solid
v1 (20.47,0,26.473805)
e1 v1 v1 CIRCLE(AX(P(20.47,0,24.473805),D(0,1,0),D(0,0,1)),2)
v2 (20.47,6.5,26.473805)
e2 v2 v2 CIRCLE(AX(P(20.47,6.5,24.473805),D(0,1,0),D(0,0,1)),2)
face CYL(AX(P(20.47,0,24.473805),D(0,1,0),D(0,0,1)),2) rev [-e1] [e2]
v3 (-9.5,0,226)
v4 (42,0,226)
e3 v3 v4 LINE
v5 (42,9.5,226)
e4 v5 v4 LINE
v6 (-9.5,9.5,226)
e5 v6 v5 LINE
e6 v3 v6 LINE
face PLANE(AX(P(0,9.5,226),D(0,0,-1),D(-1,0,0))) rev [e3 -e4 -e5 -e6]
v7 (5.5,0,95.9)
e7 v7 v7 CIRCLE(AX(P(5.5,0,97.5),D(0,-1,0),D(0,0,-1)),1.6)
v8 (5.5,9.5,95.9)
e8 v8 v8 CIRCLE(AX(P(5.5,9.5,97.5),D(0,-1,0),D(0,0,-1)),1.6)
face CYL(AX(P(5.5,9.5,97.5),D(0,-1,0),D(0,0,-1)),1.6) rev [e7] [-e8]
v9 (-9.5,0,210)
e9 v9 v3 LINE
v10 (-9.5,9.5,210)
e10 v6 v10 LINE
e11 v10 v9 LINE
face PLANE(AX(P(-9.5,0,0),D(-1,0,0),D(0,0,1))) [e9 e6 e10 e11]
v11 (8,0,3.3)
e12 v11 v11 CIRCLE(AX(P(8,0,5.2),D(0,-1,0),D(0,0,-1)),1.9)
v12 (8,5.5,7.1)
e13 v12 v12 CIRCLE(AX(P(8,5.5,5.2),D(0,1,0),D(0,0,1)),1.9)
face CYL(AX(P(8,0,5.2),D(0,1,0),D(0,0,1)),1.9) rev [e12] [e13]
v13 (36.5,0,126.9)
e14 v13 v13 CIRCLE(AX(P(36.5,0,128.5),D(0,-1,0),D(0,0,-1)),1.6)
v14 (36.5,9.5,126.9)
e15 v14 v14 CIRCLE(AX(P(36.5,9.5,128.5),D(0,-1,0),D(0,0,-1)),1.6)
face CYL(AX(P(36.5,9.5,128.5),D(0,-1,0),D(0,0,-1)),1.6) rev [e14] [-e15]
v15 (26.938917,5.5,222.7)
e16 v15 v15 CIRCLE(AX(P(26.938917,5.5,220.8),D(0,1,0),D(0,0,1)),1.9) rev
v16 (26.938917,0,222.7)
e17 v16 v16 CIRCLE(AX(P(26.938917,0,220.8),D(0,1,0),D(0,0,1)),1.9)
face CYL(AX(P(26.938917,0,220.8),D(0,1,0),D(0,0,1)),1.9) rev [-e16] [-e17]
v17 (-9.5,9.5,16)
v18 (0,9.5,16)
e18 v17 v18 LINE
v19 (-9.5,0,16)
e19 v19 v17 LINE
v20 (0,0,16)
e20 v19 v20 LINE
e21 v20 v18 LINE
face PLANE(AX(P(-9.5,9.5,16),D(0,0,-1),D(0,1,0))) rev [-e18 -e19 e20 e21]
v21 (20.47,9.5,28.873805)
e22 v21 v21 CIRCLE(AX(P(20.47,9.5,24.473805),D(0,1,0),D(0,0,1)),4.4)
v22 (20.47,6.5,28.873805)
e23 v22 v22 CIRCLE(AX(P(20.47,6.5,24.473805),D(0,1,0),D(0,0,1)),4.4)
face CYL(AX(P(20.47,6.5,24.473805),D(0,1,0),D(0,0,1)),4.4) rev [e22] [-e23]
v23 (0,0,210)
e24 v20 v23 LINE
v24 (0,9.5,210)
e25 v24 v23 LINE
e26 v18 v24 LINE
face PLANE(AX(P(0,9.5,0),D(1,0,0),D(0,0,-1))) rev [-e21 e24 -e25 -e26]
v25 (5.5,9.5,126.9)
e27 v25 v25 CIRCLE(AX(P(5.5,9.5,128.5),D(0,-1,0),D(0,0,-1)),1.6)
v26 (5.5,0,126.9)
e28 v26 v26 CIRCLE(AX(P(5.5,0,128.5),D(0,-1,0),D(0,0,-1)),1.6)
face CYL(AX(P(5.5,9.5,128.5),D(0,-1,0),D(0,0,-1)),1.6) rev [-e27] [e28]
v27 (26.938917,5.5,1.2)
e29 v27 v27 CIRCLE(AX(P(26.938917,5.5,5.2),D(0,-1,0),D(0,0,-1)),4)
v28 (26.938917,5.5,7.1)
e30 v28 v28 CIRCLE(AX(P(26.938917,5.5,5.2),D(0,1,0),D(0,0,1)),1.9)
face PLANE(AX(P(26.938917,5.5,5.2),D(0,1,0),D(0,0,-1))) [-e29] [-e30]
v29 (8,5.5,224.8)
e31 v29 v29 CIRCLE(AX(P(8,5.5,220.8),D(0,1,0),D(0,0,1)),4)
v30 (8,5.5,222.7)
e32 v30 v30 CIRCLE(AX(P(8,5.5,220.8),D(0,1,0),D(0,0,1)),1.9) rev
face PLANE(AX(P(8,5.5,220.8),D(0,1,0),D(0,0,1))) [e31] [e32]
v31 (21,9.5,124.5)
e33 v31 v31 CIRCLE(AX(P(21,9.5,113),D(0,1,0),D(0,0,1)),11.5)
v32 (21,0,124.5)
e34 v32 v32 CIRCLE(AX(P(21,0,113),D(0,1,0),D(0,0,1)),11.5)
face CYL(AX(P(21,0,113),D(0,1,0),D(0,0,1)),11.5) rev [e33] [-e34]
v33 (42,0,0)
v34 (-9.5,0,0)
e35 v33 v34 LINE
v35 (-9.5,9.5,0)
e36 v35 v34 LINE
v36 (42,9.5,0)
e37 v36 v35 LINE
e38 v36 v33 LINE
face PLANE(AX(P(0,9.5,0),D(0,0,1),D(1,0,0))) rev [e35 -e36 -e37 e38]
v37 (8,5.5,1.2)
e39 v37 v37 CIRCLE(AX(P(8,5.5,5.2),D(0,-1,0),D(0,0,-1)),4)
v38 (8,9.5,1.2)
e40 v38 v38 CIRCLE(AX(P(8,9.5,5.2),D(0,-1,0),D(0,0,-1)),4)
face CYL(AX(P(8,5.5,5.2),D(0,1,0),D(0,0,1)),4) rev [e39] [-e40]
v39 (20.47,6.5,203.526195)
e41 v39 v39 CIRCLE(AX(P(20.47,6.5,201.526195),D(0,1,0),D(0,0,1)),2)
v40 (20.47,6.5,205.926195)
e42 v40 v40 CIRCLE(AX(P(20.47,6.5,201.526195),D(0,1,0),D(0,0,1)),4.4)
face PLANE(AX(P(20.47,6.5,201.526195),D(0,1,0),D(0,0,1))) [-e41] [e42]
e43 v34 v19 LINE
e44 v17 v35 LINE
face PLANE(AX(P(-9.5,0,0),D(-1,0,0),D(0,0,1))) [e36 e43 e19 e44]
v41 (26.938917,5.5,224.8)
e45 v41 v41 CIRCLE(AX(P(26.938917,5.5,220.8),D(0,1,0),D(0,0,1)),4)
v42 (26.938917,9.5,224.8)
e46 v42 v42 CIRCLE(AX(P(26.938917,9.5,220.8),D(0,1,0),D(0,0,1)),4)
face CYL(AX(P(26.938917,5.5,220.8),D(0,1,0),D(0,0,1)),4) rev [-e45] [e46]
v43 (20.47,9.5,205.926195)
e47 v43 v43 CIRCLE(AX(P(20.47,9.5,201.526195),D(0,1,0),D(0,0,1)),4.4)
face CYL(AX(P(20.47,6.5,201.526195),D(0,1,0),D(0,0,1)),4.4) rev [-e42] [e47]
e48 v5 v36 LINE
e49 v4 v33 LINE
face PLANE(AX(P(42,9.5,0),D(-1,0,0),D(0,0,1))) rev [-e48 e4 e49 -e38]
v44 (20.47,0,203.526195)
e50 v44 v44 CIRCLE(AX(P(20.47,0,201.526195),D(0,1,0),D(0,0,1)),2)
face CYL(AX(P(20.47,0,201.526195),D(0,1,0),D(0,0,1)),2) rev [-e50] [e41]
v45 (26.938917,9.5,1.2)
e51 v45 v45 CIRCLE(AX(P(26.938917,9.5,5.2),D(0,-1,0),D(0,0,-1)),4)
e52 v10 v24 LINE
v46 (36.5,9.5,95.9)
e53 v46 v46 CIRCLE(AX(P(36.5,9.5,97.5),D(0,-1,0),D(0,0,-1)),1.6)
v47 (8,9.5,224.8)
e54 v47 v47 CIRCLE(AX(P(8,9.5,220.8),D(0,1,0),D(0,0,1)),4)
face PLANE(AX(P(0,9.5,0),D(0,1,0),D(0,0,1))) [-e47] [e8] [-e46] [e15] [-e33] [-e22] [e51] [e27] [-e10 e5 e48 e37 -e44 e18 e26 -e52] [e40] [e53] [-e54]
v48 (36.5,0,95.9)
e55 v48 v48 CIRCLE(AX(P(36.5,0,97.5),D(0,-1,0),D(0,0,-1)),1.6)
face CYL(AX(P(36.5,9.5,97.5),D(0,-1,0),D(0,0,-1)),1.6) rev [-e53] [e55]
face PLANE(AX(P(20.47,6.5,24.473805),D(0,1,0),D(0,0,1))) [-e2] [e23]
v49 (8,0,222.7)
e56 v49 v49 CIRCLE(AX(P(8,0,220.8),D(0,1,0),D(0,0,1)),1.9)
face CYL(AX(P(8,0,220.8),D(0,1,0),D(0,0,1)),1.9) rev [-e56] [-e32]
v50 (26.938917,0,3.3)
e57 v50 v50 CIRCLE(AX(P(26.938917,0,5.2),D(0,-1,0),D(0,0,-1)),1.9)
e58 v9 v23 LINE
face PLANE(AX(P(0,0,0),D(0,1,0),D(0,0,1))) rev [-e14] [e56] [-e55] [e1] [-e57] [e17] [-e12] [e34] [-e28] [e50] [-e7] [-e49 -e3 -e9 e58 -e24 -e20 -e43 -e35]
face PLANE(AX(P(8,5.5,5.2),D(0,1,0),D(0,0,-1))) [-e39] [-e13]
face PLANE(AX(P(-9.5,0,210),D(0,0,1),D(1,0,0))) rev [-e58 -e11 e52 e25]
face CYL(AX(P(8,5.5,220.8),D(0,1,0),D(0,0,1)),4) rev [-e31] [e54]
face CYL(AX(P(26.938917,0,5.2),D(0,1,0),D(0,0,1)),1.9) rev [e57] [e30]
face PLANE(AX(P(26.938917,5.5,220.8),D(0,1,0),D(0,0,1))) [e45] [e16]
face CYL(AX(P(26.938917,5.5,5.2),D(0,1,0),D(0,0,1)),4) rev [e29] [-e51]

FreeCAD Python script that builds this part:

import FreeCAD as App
import Part
import Sketcher
from FreeCAD import Vector
Q = App.Units.Quantity

doc = App.newDocument("Part")
params = doc.addObject("Spreadsheet::Sheet", "Params")
for row, (alias, value) in enumerate([
    ("sketch1_width", "42 mm"),
    ("sketch1_height", "226 mm"),
    ("pad1_length", "9.5 mm"),
    ("sketch2_diameter", "23 mm"),
    ("sketch3_height", "16 mm"),
    ("sketch3_width", "9.5 mm"),
    ("pad2_length", "9.5 mm"),
    ("sketch4_diameter", "8.8 mm"),
    ("pocket2_length", "3 mm"),
    ("sketch5_diameter", "3.2 mm"),
    ("sketch6_diameter", "4 mm"),
    ("sketch7_diameter", "3.8 mm"),
    ("sketch8_diameter", "8 mm"),
    ("pocket6_length", "4 mm"),
], start=1):
    params.set(f"A{row}", alias)
    params.set(f"B{row}", "=" + value)
    params.setAlias(f"B{row}", alias)

body = doc.addObject("PartDesign::Body", "Body")

# Sketch on XZ plane
sketch1 = body.newObject("Sketcher::SketchObject", "Sketch")
sketch1.AttachmentSupport = (doc.getObject("XZ_Plane"), [""])
sketch1.MapMode = "FlatFace"
sketch1.addGeometry([
    Part.LineSegment(Vector(0, 0, 0), Vector(0, 226, 0)),
    Part.LineSegment(Vector(0, 226, 0), Vector(42, 226, 0)),
    Part.LineSegment(Vector(42, 226, 0), Vector(42, 0, 0)),
    Part.LineSegment(Vector(42, 0, 0), Vector(0, 0, 0)),
], False)
sketch1.addConstraint([
    Sketcher.Constraint("Coincident", 0, 2, 1, 1),
    Sketcher.Constraint("Coincident", 1, 2, 2, 1),
    Sketcher.Constraint("Coincident", 2, 2, 3, 1),
    Sketcher.Constraint("Coincident", 3, 2, 0, 1),
    Sketcher.Constraint("Vertical", 0),
    Sketcher.Constraint("Horizontal", 1),
    Sketcher.Constraint("Vertical", 2),
    Sketcher.Constraint("Horizontal", 3),
    Sketcher.Constraint("Coincident", 3, 2, -1, 1),
    Sketcher.Constraint("DistanceX", 1, 1, 1, 2, Q("42 mm")),
    Sketcher.Constraint("DistanceY", 0, 1, 0, 2, Q("226 mm")),
])
sketch1.setExpression("Constraints[9]", "Params.sketch1_width")
sketch1.setExpression("Constraints[10]", "Params.sketch1_height")
pad1 = body.newObject("PartDesign::Pad", "Pad")
pad1.Profile = sketch1
pad1.setExpression("Length", "Params.pad1_length")
pad1.Reversed = True

# Sketch on XZ plane
sketch2 = body.newObject("Sketcher::SketchObject", "Sketch001")
sketch2.AttachmentSupport = (doc.getObject("XZ_Plane"), [""])
sketch2.MapMode = "FlatFace"
sketch2.AttachmentOffset = App.Placement(Vector(0, 0, -9.5), App.Rotation())
sketch2.addGeometry(Part.Circle(Vector(21, 113, 0), Vector(0, 0, 1), 12), False)
sketch2.addConstraint([
    Sketcher.Constraint("Diameter", 0, Q("23 mm")),
    Sketcher.Constraint("DistanceX", -1, 1, 0, 3, Q("21 mm")),
    Sketcher.Constraint("DistanceY", -1, 1, 0, 3, Q("113 mm")),
])
sketch2.setExpression("Constraints[0]", "Params.sketch2_diameter")
pocket1 = body.newObject("PartDesign::Pocket", "Pocket")
pocket1.Profile = sketch2
pocket1.Type = "ThroughAll"
pocket1.Reversed = True

# Sketch on YZ plane
sketch3 = body.newObject("Sketcher::SketchObject", "Sketch002")
sketch3.AttachmentSupport = (doc.getObject("YZ_Plane"), [""])
sketch3.MapMode = "FlatFace"
sketch3.addGeometry([
    Part.LineSegment(Vector(10, 0, 0), Vector(0, 0, 0)),  # 0
    Part.LineSegment(Vector(0, 0, 0), Vector(0, 16, 0)),  # 1
    Part.LineSegment(Vector(0, 16, 0), Vector(10, 16, 0)),  # 2
    Part.LineSegment(Vector(10, 16, 0), Vector(10, 0, 0)),  # 3
    Part.LineSegment(Vector(10, 210, 0), Vector(0, 210, 0)),  # 4
    Part.LineSegment(Vector(0, 210, 0), Vector(0, 226, 0)),  # 5
    Part.LineSegment(Vector(0, 226, 0), Vector(10, 226, 0)),  # 6
    Part.LineSegment(Vector(10, 226, 0), Vector(10, 210, 0)),  # 7
], False)
sketch3.addConstraint([
    Sketcher.Constraint("Coincident", 0, 2, 1, 1),
    Sketcher.Constraint("Coincident", 1, 2, 2, 1),
    Sketcher.Constraint("Coincident", 2, 2, 3, 1),
    Sketcher.Constraint("Coincident", 3, 2, 0, 1),
    Sketcher.Constraint("Coincident", 4, 2, 5, 1),
    Sketcher.Constraint("Coincident", 5, 2, 6, 1),
    Sketcher.Constraint("Coincident", 6, 2, 7, 1),
    Sketcher.Constraint("Coincident", 7, 2, 4, 1),
    Sketcher.Constraint("Horizontal", 0),
    Sketcher.Constraint("Vertical", 1),
    Sketcher.Constraint("Horizontal", 2),
    Sketcher.Constraint("Vertical", 3),
    Sketcher.Constraint("Horizontal", 4),
    Sketcher.Constraint("Vertical", 5),
    Sketcher.Constraint("Horizontal", 6),
    Sketcher.Constraint("Vertical", 7),
    Sketcher.Constraint("Coincident", 0, 2, -1, 1),
    Sketcher.Constraint("PointOnObject", 4, 2, -2),
    Sketcher.Constraint("Vertical", 3, 2, 6, 2),
    Sketcher.Constraint("Equal", 3, 5),
    Sketcher.Constraint("DistanceY", 1, 1, 1, 2, Q("16 mm")),
    Sketcher.Constraint("DistanceX", 0, 2, 0, 1, Q("9.5 mm")),
    Sketcher.Constraint("DistanceY", -1, 1, 4, 2, Q("210 mm")),
])
sketch3.setExpression("Constraints[20]", "Params.sketch3_height")
sketch3.setExpression("Constraints[21]", "Params.sketch3_width")
pad2 = body.newObject("PartDesign::Pad", "Pad001")
pad2.Profile = sketch3
pad2.setExpression("Length", "Params.pad2_length")
pad2.Reversed = True

# Sketch on XZ plane
sketch4 = body.newObject("Sketcher::SketchObject", "Sketch003")
sketch4.AttachmentSupport = (doc.getObject("XZ_Plane"), [""])
sketch4.MapMode = "FlatFace"
sketch4.AttachmentOffset = App.Placement(Vector(0, 0, -9.5), App.Rotation())
sketch4.addGeometry([
    Part.Circle(Vector(20.5, 201.5, 0), Vector(0, 0, 1), 4.4),
    Part.Circle(Vector(20.5, 24.5, 0), Vector(0, 0, 1), 4.4),
], False)
sketch4.addConstraint([
    Sketcher.Constraint("Equal", 0, 1),
    Sketcher.Constraint("Vertical", 0, 3, 1, 3),
    Sketcher.Constraint("Diameter", 0, Q("8.8 mm")),
    Sketcher.Constraint("DistanceX", -1, 1, 0, 3, Q("20.47 mm")),
    Sketcher.Constraint("DistanceY", 1, 3, 0, 3, Q("177.052389 mm")),
    Sketcher.Constraint("DistanceY", -1, 1, 0, 3, Q("201.526195 mm")),
])
sketch4.setExpression("Constraints[2]", "Params.sketch4_diameter")
pocket2 = body.newObject("PartDesign::Pocket", "Pocket001")
pocket2.Profile = sketch4
pocket2.setExpression("Length", "Params.pocket2_length")
pocket2.Reversed = True

# Sketch on XZ plane
sketch5 = body.newObject("Sketcher::SketchObject", "Sketch004")
sketch5.AttachmentSupport = (doc.getObject("XZ_Plane"), [""])
sketch5.MapMode = "FlatFace"
sketch5.addGeometry([
    Part.Circle(Vector(5.5, 97.5, 0), Vector(0, 0, 1), 1.6),
    Part.Circle(Vector(5.5, 128.5, 0), Vector(0, 0, 1), 1.6),
    Part.Circle(Vector(36.5, 97.5, 0), Vector(0, 0, 1), 1.6),
    Part.Circle(Vector(36.5, 128.5, 0), Vector(0, 0, 1), 1.6),
], False)
sketch5.addConstraint([
    Sketcher.Constraint("Equal", 0, 1),
    Sketcher.Constraint("Equal", 1, 2),
    Sketcher.Constraint("Equal", 2, 3),
    Sketcher.Constraint("Horizontal", 0, 3, 2, 3),
    Sketcher.Constraint("Horizontal", 1, 3, 3, 3),
    Sketcher.Constraint("Vertical", 0, 3, 1, 3),
    Sketcher.Constraint("Vertical", 2, 3, 3, 3),
    Sketcher.Constraint("Diameter", 0, Q("3.2 mm")),
    Sketcher.Constraint("DistanceY", 0, 3, 1, 3, Q("31 mm")),
    Sketcher.Constraint("DistanceX", 0, 3, 2, 3, Q("31 mm")),
    Sketcher.Constraint("DistanceX", -1, 1, 0, 3, Q("5.5 mm")),
    Sketcher.Constraint("DistanceY", -1, 1, 0, 3, Q("97.5 mm")),
])
sketch5.setExpression("Constraints[7]", "Params.sketch5_diameter")
pocket3 = body.newObject("PartDesign::Pocket", "Pocket002")
pocket3.Profile = sketch5
pocket3.Type = "ThroughAll"

# Sketch on XZ plane
sketch6 = body.newObject("Sketcher::SketchObject", "Sketch005")
sketch6.AttachmentSupport = (doc.getObject("XZ_Plane"), [""])
sketch6.MapMode = "FlatFace"
sketch6.AttachmentOffset = App.Placement(Vector(0, 0, -9.5), App.Rotation())
sketch6.addGeometry([
    Part.Circle(Vector(20.5, 201.5, 0), Vector(0, 0, 1), 2),
    Part.Circle(Vector(20.5, 24.5, 0), Vector(0, 0, 1), 2),
], False)
sketch6.addConstraint([
    Sketcher.Constraint("Equal", 0, 1),
    Sketcher.Constraint("Vertical", 0, 3, 1, 3),
    Sketcher.Constraint("Diameter", 0, Q("4 mm")),
    Sketcher.Constraint("DistanceX", -1, 1, 0, 3, Q("20.47 mm")),
    Sketcher.Constraint("DistanceY", 1, 3, 0, 3, Q("177.052389 mm")),
    Sketcher.Constraint("DistanceY", -1, 1, 0, 3, Q("201.526195 mm")),
])
sketch6.setExpression("Constraints[2]", "Params.sketch6_diameter")
pocket4 = body.newObject("PartDesign::Pocket", "Pocket003")
pocket4.Profile = sketch6
pocket4.Type = "ThroughAll"
pocket4.Reversed = True

# Sketch on XZ plane
sketch7 = body.newObject("Sketcher::SketchObject", "Sketch006")
sketch7.AttachmentSupport = (doc.getObject("XZ_Plane"), [""])
sketch7.MapMode = "FlatFace"
sketch7.AttachmentOffset = App.Placement(Vector(0, 0, -9.5), App.Rotation())
sketch7.addGeometry([
    Part.Circle(Vector(8, 220.8, 0), Vector(0, 0, 1), 1.9),
    Part.Circle(Vector(26.9, 220.8, 0), Vector(0, 0, 1), 1.9),
], False)
sketch7.addConstraint([
    Sketcher.Constraint("Equal", 0, 1),
    Sketcher.Constraint("Horizontal", 0, 3, 1, 3),
    Sketcher.Constraint("Diameter", 0, Q("3.8 mm")),
    Sketcher.Constraint("DistanceX", -1, 1, 0, 3, Q("8 mm")),
    Sketcher.Constraint("DistanceY", -1, 1, 0, 3, Q("220.8 mm")),
    Sketcher.Constraint("DistanceX", -1, 1, 1, 3, Q("26.938917 mm")),
])
sketch7.setExpression("Constraints[2]", "Params.sketch7_diameter")
pocket5 = body.newObject("PartDesign::Pocket", "Pocket004")
pocket5.Profile = sketch7
pocket5.Type = "ThroughAll"
pocket5.Reversed = True

# Sketch on XZ plane
sketch8 = body.newObject("Sketcher::SketchObject", "Sketch007")
sketch8.AttachmentSupport = (doc.getObject("XZ_Plane"), [""])
sketch8.MapMode = "FlatFace"
sketch8.AttachmentOffset = App.Placement(Vector(0, 0, -9.5), App.Rotation())
sketch8.addGeometry([
    Part.Circle(Vector(8, 220.8, 0), Vector(0, 0, 1), 4),
    Part.Circle(Vector(26.9, 220.8, 0), Vector(0, 0, 1), 4),
], False)
sketch8.addConstraint([
    Sketcher.Constraint("Equal", 0, 1),
    Sketcher.Constraint("Horizontal", 0, 3, 1, 3),
    Sketcher.Constraint("Diameter", 0, Q("8 mm")),
    Sketcher.Constraint("DistanceX", -1, 1, 0, 3, Q("8 mm")),
    Sketcher.Constraint("DistanceY", -1, 1, 0, 3, Q("220.8 mm")),
    Sketcher.Constraint("DistanceX", -1, 1, 1, 3, Q("26.938917 mm")),
])
sketch8.setExpression("Constraints[2]", "Params.sketch8_diameter")
pocket6 = body.newObject("PartDesign::Pocket", "Pocket005")
pocket6.Profile = sketch8
pocket6.setExpression("Length", "Params.pocket6_length")
pocket6.Reversed = True
doc.recompute()

datumplane = body.newObject("PartDesign::Plane", "DatumPlane")
datumplane.AttachmentSupport = (doc.getObject("XY_Plane"), [""])
datumplane.MapMode = "FlatFace"
datumplane.AttachmentOffset = App.Placement(Vector(0, 0, 113), App.Rotation())
mirrored = body.newObject("PartDesign::Mirrored", "Mirrored")
mirrored.Originals = [pocket5, pocket6]
mirrored.MirrorPlane = (datumplane, [""])
body.Tip = mirrored

doc.recompute()
